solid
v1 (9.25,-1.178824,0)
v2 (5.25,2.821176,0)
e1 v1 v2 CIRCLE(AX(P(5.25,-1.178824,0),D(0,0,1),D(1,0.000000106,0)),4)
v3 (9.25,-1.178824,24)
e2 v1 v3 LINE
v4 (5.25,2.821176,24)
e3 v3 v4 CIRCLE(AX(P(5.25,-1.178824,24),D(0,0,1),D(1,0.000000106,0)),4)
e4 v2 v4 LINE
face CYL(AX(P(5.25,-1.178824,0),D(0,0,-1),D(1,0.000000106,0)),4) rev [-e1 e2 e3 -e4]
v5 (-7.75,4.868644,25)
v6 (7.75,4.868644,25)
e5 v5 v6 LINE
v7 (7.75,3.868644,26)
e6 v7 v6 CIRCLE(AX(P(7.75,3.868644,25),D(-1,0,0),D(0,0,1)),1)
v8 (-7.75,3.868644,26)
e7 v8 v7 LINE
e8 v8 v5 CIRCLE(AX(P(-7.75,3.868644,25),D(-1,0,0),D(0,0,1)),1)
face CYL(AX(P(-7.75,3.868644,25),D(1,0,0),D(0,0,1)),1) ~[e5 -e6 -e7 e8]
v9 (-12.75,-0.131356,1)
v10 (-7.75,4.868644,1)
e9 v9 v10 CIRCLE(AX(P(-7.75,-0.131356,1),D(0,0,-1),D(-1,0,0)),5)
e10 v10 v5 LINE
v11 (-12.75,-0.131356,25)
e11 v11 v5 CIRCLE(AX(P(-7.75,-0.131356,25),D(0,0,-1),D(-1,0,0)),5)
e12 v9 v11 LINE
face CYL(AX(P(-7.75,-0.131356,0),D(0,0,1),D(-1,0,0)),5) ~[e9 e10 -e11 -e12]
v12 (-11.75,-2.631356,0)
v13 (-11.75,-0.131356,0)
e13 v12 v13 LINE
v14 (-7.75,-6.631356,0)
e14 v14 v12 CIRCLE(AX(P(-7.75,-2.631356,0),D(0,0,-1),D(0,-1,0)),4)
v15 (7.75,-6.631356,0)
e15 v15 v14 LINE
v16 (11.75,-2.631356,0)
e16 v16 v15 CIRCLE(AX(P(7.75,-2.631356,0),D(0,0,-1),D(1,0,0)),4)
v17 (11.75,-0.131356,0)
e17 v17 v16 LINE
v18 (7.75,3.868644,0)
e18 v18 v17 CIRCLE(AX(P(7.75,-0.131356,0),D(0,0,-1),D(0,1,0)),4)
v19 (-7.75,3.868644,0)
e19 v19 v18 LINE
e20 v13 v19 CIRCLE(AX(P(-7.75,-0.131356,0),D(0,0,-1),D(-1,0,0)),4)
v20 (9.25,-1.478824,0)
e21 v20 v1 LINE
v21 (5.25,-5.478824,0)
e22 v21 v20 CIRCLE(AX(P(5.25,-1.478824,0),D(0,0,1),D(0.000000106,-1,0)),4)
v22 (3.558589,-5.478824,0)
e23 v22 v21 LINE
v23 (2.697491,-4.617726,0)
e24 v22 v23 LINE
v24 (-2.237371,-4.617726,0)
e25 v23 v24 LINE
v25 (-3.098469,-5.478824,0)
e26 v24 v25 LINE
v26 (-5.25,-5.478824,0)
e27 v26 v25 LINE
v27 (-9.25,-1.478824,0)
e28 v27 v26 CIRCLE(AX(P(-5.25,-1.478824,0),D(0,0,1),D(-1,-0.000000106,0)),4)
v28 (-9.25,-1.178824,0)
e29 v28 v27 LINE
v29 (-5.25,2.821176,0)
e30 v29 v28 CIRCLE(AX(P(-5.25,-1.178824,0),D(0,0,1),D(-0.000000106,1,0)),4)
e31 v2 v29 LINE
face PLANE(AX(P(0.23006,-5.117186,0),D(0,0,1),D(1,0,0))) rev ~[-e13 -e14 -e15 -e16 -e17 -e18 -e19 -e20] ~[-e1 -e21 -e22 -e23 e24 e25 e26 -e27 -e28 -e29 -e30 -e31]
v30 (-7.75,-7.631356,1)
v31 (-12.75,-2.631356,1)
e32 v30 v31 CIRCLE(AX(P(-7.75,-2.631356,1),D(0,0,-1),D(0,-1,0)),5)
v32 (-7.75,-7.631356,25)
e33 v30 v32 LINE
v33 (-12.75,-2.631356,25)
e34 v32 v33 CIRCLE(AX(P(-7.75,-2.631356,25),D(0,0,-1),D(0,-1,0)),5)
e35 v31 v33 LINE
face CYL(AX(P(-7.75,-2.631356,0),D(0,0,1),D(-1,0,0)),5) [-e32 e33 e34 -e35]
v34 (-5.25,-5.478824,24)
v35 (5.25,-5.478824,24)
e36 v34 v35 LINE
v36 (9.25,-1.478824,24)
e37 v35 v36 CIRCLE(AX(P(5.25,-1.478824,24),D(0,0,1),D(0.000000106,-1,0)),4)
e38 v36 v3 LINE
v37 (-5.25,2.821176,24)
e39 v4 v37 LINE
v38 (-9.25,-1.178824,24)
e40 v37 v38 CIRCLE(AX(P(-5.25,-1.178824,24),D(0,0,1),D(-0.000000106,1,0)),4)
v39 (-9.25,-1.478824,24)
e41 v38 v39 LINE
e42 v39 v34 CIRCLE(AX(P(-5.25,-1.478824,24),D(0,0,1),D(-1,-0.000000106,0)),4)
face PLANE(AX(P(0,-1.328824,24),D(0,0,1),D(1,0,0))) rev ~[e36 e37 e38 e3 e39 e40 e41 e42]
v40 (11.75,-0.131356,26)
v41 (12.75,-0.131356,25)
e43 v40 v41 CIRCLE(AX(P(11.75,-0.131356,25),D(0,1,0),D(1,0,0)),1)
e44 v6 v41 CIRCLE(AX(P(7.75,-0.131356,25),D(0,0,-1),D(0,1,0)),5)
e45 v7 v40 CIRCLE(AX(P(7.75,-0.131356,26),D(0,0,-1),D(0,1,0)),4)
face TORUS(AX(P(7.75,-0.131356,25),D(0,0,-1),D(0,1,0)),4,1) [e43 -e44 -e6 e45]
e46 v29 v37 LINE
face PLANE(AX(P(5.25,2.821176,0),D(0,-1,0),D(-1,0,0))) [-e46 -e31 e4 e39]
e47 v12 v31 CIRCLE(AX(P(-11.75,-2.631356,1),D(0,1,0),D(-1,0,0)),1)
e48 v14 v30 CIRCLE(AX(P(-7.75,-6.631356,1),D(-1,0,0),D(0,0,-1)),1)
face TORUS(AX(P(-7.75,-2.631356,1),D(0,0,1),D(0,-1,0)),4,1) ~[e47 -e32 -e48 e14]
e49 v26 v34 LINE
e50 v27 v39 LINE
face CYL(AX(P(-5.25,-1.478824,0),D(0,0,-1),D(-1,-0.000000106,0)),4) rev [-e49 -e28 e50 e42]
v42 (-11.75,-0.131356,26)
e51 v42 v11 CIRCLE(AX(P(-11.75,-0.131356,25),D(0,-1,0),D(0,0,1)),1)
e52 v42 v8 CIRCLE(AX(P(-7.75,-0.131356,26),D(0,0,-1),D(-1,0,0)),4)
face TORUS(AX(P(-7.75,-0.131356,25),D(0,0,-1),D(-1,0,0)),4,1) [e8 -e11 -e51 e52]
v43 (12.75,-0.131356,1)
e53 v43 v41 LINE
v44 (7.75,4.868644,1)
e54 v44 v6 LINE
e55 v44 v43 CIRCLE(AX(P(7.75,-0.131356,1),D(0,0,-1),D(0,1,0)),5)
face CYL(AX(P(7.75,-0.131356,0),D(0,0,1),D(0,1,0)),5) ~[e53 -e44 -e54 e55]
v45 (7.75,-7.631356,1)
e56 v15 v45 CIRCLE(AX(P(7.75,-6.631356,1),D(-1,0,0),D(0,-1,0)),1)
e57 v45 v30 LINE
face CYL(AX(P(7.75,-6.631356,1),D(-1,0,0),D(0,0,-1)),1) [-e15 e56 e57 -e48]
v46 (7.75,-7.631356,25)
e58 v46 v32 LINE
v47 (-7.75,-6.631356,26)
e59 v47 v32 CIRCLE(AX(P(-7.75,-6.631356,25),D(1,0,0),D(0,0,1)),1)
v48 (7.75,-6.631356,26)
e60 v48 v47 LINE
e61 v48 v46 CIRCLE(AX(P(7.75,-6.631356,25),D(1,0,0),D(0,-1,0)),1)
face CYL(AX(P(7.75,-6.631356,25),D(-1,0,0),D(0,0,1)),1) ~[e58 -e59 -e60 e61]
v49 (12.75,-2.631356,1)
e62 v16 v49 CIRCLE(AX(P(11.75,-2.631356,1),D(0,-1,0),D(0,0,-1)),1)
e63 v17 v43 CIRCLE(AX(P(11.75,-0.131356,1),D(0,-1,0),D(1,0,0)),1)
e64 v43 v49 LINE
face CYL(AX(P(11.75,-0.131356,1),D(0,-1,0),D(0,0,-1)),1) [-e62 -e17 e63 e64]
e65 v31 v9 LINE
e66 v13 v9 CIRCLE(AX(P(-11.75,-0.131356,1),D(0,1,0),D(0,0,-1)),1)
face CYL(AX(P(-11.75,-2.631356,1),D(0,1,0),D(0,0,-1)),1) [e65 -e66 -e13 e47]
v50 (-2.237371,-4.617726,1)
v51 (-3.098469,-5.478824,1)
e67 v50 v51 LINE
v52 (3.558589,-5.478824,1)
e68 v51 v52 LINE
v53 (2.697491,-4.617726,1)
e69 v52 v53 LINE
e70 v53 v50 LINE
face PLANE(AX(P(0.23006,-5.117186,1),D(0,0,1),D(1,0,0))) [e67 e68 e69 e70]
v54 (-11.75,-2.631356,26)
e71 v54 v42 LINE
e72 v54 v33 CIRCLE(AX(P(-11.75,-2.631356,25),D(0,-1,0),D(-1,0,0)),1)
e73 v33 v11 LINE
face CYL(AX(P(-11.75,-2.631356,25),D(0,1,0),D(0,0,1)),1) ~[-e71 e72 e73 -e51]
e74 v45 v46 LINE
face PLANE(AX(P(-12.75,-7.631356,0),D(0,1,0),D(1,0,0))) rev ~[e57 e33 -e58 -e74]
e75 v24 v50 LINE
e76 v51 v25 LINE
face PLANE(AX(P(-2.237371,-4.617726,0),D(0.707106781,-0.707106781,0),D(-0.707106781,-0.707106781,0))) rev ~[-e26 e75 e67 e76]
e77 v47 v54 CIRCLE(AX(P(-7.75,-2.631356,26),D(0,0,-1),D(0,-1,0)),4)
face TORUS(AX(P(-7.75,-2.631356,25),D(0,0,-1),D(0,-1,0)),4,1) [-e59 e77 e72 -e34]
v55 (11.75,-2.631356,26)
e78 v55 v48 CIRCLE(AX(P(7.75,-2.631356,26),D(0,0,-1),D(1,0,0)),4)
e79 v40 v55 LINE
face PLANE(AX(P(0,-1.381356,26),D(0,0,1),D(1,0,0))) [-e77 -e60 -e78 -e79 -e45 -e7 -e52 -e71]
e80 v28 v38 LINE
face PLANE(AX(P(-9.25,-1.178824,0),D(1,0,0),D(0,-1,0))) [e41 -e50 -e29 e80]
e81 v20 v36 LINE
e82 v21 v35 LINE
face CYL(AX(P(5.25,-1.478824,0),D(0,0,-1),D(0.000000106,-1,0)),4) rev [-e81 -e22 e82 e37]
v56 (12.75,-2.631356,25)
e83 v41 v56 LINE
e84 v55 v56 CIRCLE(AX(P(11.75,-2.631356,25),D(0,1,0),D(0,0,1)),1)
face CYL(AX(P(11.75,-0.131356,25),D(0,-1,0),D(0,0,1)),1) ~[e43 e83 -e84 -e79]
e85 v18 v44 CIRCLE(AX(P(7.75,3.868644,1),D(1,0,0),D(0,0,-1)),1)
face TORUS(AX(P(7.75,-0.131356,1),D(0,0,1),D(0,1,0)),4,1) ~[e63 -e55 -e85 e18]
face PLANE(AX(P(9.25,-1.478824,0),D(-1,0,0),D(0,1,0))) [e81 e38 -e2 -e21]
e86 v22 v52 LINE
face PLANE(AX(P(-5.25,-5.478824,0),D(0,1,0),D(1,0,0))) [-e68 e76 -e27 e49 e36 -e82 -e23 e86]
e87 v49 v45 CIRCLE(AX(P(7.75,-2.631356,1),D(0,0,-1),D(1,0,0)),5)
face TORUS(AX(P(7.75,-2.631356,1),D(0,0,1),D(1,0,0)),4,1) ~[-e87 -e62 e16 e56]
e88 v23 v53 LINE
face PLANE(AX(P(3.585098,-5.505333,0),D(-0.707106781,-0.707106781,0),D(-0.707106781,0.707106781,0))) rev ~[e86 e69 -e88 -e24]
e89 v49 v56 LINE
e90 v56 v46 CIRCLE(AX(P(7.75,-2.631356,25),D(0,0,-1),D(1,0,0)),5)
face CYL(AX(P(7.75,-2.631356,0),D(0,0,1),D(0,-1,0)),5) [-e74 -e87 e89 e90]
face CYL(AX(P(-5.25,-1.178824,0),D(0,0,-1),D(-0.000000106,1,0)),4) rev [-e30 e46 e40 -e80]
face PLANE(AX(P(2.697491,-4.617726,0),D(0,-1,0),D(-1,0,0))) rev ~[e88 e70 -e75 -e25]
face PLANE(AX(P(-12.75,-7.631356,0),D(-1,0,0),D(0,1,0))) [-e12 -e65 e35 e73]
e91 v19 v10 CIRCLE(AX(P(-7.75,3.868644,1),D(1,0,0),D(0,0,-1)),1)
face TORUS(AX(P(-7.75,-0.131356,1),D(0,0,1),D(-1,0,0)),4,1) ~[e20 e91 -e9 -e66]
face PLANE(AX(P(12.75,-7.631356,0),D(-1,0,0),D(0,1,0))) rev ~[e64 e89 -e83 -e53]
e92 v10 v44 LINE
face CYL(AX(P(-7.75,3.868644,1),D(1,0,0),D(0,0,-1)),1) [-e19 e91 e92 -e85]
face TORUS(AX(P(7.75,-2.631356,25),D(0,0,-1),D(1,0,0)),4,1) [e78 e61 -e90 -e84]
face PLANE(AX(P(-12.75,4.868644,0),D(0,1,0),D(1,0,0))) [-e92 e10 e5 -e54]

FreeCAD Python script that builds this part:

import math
import FreeCAD as App
import Part
import Sketcher


def edges_at(feature, points):
    """Names of the edges that pass closest to the given points."""
    edges = feature.Shape.Edges
    near = lambda p: min(range(len(edges)), key=lambda i: edges[i].distToShape(Part.Vertex(*p))[0])
    return sorted({f"Edge{near(p) + 1}" for p in points})


def add_polygon(sketch, points):
    """Adds a closed chain of lines whose ends are joined by coincident constraints."""
    first, n = sketch.GeometryCount, len(points)
    for a, b in zip(points, points[1:] + points[:1]):
        sketch.addGeometry(Part.LineSegment(App.Vector(*a, 0), App.Vector(*b, 0)), False)
    for i in range(n):
        sketch.addConstraint(Sketcher.Constraint("Coincident", first + i, 2, first + (i + 1) % n, 1))

doc = App.newDocument("Part")
body = doc.addObject("PartDesign::Body", "Body")

# Sketch on XY plane
sketch1 = body.newObject("Sketcher::SketchObject", "Sketch")
sketch1.AttachmentSupport = (doc.getObject("XY_Plane"), [""])
sketch1.MapMode = "FlatFace"
add_polygon(sketch1, [(-13, 5), (-13, -8), (13, -8), (13, 5)])  # lines 0-3
sketch1.addConstraint(Sketcher.Constraint("Vertical", 0))
sketch1.addConstraint(Sketcher.Constraint("Horizontal", 1))
sketch1.addConstraint(Sketcher.Constraint("Vertical", 2))
sketch1.addConstraint(Sketcher.Constraint("Horizontal", 3))
sketch1.addConstraint(Sketcher.Constraint("DistanceX", 1, 1, 1, 2, 25.5))
sketch1.addConstraint(Sketcher.Constraint("DistanceY", 0, 2, 0, 1, 12.5))
sketch1.addConstraint(Sketcher.Constraint("DistanceX", 0, 2, -1, 1, 12.75))
sketch1.addConstraint(Sketcher.Constraint("DistanceY", 0, 2, -1, 1, 7.631356))
pad1 = body.newObject("PartDesign::Pad", "Pad")
pad1.Profile = sketch1
pad1.Length = 26

# Sketch on XY plane
sketch2 = body.newObject("Sketcher::SketchObject", "Sketch001")
sketch2.AttachmentSupport = (doc.getObject("XY_Plane"), [""])
sketch2.MapMode = "FlatFace"
sketch2.addGeometry(Part.LineSegment(App.Vector(-5.25, -5.48, 0), App.Vector(5.25, -5.48, 0)), False)
sketch2.addGeometry(Part.ArcOfCircle(Part.Circle(App.Vector(5.25, -1.48, 0), App.Vector(0, 0, 1), 4), math.radians(-90), math.radians(0)), False)
sketch2.addGeometry(Part.LineSegment(App.Vector(9.25, -1.48, 0), App.Vector(9.25, -1.18, 0)), False)
sketch2.addGeometry(Part.ArcOfCircle(Part.Circle(App.Vector(5.25, -1.18, 0), App.Vector(0, 0, 1), 4), math.radians(0), math.radians(90)), False)
sketch2.addGeometry(Part.LineSegment(App.Vector(5.25, 2.82, 0), App.Vector(-5.25, 2.82, 0)), False)
sketch2.addGeometry(Part.ArcOfCircle(Part.Circle(App.Vector(-5.25, -1.18, 0), App.Vector(0, 0, 1), 4), math.radians(90), math.radians(180)), False)
sketch2.addGeometry(Part.LineSegment(App.Vector(-9.25, -1.18, 0), App.Vector(-9.25, -1.48, 0)), False)
sketch2.addGeometry(Part.ArcOfCircle(Part.Circle(App.Vector(-5.25, -1.48, 0), App.Vector(0, 0, 1), 4), math.radians(-180), math.radians(-90)), False)
sketch2.addConstraint(Sketcher.Constraint("Tangent", 0, 2, 1, 1))
sketch2.addConstraint(Sketcher.Constraint("Tangent", 1, 2, 2, 1))
sketch2.addConstraint(Sketcher.Constraint("Tangent", 2, 2, 3, 1))
sketch2.addConstraint(Sketcher.Constraint("Tangent", 3, 2, 4, 1))
sketch2.addConstraint(Sketcher.Constraint("Tangent", 4, 2, 5, 1))
sketch2.addConstraint(Sketcher.Constraint("Tangent", 5, 2, 6, 1))
sketch2.addConstraint(Sketcher.Constraint("Tangent", 6, 2, 7, 1))
sketch2.addConstraint(Sketcher.Constraint("Tangent", 7, 2, 0, 1))
sketch2.addConstraint(Sketcher.Constraint("Horizontal", 0))
sketch2.addConstraint(Sketcher.Constraint("Vertical", 2))
sketch2.addConstraint(Sketcher.Constraint("Horizontal", 4))
sketch2.addConstraint(Sketcher.Constraint("Vertical", 6))
sketch2.addConstraint(Sketcher.Constraint("Equal", 1, 3))
sketch2.addConstraint(Sketcher.Constraint("Equal", 3, 5))
sketch2.addConstraint(Sketcher.Constraint("Equal", 5, 7))
sketch2.addConstraint(Sketcher.Constraint("Radius", 1, 4.0))
sketch2.addConstraint(Sketcher.Constraint("DistanceX", 0, 1, 0, 2, 10.5))
sketch2.addConstraint(Sketcher.Constraint("DistanceY", 2, 1, 2, 2, 0.3))
sketch2.addConstraint(Sketcher.Constraint("DistanceX", -1, 1, 1, 3, 5.25))
sketch2.addConstraint(Sketcher.Constraint("DistanceY", 1, 3, -1, 1, 1.478824))
pocket1 = body.newObject("PartDesign::Pocket", "Pocket")
pocket1.Profile = sketch2
pocket1.Length = 24
pocket1.Reversed = True
doc.recompute()

fillet = body.newObject("PartDesign::Fillet", "Fillet")
fillet.Base = (pocket1, edges_at(pocket1, [
    (12.75, -7.631, 13),
    (12.75, 4.869, 13),
    (-12.75, -7.631, 13),
    (-12.75, 4.869, 13),
]))
fillet.Radius = 5
doc.recompute()

fillet2 = body.newObject("PartDesign::Fillet", "Fillet001")
fillet2.Base = (fillet, edges_at(fillet, [(0, 4.869, 0), (0, 4.869, 26)]))
fillet2.Radius = 1

# Sketch on XY plane
sketch3 = body.newObject("Sketcher::SketchObject", "Sketch002")
sketch3.AttachmentSupport = (doc.getObject("XY_Plane"), [""])
sketch3.MapMode = "FlatFace"
add_polygon(sketch3, [(-2.2, -4.6), (-3.1, -5.5), (3.6, -5.5), (2.7, -4.6)])  # lines 0-3
sketch3.addConstraint(Sketcher.Constraint("Horizontal", 1))
sketch3.addConstraint(Sketcher.Constraint("Horizontal", 3))
sketch3.addConstraint(Sketcher.Constraint("Perpendicular", 0, 2))
sketch3.addConstraint(Sketcher.Constraint("Equal", 0, 2))
sketch3.addConstraint(Sketcher.Constraint("DistanceX", 1, 1, 1, 2, 6.710076))
sketch3.addConstraint(Sketcher.Constraint("DistanceX", 3, 2, 3, 1, 4.934862))
sketch3.addConstraint(Sketcher.Constraint("DistanceX", 0, 2, -1, 1, 3.124978))
sketch3.addConstraint(Sketcher.Constraint("DistanceY", 0, 2, -1, 1, 5.505333))
pad2 = body.newObject("PartDesign::Pad", "Pad001")
pad2.Profile = sketch3
pad2.Length = 1

doc.recompute()
